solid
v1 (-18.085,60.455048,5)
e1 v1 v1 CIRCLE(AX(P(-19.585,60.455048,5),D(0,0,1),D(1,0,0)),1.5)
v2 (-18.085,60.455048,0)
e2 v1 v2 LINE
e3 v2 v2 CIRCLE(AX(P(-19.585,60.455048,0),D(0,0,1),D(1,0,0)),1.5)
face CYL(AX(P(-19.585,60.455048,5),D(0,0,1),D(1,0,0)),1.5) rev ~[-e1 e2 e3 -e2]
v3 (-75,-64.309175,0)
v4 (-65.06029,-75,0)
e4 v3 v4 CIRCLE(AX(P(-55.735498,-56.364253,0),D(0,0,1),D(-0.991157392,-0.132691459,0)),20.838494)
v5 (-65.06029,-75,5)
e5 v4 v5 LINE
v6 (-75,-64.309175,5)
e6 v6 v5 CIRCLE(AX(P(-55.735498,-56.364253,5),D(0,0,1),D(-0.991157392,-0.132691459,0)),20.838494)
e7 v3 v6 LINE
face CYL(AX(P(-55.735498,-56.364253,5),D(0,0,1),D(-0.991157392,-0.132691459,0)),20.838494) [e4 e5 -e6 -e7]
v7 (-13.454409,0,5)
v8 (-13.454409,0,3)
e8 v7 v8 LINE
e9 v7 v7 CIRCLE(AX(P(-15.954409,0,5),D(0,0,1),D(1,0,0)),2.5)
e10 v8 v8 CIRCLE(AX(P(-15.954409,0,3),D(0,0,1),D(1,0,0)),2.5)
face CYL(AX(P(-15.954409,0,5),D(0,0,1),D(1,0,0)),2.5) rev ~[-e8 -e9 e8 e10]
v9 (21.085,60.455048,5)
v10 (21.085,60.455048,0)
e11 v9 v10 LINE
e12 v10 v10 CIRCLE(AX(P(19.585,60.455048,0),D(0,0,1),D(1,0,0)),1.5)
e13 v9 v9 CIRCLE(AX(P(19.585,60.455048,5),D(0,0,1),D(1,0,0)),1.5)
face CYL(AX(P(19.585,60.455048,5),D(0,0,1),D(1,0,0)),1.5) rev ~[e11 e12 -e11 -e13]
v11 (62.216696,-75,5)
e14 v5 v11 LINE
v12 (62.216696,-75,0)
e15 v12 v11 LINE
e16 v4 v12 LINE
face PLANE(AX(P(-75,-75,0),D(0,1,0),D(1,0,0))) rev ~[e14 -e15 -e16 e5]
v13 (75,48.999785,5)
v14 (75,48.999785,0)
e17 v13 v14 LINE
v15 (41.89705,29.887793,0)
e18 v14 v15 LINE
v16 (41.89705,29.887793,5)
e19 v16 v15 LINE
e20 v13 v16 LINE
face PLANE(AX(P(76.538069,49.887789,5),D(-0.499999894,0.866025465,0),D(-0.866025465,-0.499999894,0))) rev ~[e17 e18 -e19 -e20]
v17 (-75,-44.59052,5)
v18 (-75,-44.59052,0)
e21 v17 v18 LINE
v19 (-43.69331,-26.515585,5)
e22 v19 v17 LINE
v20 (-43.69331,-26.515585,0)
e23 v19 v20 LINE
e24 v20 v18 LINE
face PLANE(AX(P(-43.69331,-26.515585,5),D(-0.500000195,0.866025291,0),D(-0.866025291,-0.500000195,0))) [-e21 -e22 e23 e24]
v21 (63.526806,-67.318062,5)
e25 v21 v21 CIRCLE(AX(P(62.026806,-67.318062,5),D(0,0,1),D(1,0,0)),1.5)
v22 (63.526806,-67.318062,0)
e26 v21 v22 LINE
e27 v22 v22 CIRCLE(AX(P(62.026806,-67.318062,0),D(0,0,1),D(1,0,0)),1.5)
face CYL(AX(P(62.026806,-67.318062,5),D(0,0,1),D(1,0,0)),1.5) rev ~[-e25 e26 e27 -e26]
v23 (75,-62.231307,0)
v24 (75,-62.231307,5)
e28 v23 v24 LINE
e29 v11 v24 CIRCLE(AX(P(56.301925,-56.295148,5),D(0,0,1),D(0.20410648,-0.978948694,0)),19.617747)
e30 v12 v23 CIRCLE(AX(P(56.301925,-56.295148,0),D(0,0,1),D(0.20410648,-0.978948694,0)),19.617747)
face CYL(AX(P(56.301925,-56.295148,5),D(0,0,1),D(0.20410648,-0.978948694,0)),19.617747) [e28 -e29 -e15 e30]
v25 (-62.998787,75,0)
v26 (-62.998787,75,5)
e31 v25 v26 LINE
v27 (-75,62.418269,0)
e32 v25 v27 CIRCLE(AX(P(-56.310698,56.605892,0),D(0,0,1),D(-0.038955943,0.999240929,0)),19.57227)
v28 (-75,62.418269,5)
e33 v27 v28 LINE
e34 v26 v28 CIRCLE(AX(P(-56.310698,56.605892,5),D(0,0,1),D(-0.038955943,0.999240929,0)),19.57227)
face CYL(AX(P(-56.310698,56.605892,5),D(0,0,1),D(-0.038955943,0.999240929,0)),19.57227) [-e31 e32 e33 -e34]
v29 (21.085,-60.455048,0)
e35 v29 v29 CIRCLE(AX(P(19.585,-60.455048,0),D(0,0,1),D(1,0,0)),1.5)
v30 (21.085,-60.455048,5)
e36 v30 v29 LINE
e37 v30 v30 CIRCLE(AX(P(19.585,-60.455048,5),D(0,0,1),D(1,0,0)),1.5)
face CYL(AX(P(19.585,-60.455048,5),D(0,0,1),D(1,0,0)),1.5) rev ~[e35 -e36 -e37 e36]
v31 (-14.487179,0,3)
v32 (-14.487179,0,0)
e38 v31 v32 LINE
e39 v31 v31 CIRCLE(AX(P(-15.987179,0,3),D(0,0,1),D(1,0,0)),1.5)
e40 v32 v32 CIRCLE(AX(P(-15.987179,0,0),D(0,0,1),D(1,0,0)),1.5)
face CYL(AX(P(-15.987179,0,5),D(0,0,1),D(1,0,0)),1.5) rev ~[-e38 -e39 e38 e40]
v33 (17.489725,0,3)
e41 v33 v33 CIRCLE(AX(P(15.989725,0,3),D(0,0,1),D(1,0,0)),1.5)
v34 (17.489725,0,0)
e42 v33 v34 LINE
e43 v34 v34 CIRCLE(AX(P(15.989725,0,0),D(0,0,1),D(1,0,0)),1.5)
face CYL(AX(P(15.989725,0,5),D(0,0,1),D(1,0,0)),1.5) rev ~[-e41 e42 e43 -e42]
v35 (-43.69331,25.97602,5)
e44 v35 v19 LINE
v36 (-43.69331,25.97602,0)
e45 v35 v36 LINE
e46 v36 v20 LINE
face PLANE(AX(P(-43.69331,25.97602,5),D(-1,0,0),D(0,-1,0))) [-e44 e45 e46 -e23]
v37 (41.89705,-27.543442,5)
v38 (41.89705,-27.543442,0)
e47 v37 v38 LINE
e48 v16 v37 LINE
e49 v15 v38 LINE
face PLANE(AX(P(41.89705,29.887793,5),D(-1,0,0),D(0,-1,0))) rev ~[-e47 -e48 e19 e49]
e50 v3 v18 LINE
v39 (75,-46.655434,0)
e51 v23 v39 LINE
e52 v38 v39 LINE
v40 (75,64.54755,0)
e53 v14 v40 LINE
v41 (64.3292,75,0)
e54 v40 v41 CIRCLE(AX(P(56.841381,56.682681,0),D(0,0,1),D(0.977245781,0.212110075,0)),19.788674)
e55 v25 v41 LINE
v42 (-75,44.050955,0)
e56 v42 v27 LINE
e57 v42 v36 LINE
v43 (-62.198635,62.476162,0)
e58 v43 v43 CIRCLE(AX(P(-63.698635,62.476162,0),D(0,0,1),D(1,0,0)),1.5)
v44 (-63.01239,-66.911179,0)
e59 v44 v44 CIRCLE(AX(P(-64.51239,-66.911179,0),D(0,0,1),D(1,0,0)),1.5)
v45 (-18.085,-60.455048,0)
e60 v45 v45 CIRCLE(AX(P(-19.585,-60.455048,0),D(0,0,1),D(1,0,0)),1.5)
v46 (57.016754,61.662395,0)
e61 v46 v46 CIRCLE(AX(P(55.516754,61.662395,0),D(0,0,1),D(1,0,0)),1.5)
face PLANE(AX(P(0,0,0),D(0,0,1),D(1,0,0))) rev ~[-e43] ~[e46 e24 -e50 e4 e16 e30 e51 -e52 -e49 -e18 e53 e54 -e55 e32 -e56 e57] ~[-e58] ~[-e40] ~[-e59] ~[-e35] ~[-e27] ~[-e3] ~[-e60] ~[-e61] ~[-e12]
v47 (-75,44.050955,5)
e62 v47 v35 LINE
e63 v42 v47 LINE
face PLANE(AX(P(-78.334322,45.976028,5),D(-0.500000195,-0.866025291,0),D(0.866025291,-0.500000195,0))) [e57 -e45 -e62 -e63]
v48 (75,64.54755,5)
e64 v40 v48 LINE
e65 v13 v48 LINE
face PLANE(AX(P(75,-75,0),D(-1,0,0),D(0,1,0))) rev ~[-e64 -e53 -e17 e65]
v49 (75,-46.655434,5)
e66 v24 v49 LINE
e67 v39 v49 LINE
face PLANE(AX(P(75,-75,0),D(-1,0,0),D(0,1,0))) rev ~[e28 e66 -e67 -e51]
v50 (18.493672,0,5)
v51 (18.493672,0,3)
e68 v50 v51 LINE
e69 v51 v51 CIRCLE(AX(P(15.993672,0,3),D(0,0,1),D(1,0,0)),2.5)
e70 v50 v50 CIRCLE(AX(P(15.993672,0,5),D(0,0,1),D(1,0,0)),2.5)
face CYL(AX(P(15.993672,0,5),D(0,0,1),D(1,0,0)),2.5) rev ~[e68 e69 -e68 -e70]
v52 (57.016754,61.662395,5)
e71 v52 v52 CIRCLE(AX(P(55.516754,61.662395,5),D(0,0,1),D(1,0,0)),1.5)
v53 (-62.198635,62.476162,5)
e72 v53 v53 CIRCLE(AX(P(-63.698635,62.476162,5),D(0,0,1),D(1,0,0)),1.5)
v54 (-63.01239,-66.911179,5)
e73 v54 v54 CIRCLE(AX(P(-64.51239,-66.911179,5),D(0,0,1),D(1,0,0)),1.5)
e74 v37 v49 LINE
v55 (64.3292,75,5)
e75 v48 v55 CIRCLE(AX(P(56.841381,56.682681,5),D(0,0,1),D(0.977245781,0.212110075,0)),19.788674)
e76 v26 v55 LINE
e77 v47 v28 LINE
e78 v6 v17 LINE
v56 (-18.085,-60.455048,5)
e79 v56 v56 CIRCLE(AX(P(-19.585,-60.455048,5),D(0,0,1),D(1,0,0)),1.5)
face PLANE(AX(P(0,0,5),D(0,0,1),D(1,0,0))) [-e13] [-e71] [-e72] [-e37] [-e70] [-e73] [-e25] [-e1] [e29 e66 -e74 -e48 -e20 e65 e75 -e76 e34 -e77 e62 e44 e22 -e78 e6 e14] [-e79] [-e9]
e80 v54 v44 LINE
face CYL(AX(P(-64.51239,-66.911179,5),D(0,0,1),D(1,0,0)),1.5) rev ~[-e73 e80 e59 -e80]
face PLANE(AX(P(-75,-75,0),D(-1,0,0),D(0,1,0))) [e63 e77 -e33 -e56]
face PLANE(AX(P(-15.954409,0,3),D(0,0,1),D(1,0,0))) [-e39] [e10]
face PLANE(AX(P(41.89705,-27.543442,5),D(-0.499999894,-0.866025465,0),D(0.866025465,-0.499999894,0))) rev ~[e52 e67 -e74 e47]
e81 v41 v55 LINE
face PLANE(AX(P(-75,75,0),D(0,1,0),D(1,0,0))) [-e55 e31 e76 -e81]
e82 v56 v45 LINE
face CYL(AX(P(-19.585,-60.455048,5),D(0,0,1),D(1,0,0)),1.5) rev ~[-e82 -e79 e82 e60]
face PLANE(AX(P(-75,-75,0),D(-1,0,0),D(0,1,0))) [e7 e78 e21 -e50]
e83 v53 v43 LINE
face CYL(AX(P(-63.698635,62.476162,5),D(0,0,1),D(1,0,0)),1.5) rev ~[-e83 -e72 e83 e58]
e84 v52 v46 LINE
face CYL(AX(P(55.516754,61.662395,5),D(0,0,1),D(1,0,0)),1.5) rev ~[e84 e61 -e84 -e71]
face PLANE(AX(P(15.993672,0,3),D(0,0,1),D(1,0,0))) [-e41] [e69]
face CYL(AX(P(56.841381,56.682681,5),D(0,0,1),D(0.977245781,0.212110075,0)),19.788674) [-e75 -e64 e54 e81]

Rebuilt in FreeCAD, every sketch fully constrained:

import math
import FreeCAD as App
import Part
import Sketcher
from FreeCAD import Vector
Q = App.Units.Quantity

doc = App.newDocument("Part")
body = doc.addObject("PartDesign::Body", "Body")

# Sketch on XY plane
sketch1 = doc.addObject("Sketcher::SketchObject", "Sketch")
body.addObject(sketch1)
sketch1.AttachmentSupport = (doc.XY_Plane, [""])
sketch1.MapMode = "FlatFace"
sketch1.addGeometry([
    Part.LineSegment(Vector(-75, 75, 0), Vector(-75, -75, 0)),
    Part.LineSegment(Vector(-75, -75, 0), Vector(75, -75, 0)),
    Part.LineSegment(Vector(75, -75, 0), Vector(75, 75, 0)),
    Part.LineSegment(Vector(75, 75, 0), Vector(-75, 75, 0)),
], False)
sketch1.addConstraint([
    Sketcher.Constraint("Coincident", 0, 2, 1, 1),
    Sketcher.Constraint("Coincident", 1, 2, 2, 1),
    Sketcher.Constraint("Coincident", 2, 2, 3, 1),
    Sketcher.Constraint("Coincident", 3, 2, 0, 1),
    Sketcher.Constraint("Vertical", 0),
    Sketcher.Constraint("Horizontal", 1),
    Sketcher.Constraint("Vertical", 2),
    Sketcher.Constraint("Horizontal", 3),
    Sketcher.Constraint("Symmetric", 0, 2, 2, 2, -1, 1),
    Sketcher.Constraint("Equal", 3, 0),
    Sketcher.Constraint("DistanceX", 1, 1, 1, 2, Q("150 mm")),
])
pad1 = doc.addObject("PartDesign::Pad", "Pad")
body.addObject(pad1)
pad1.Profile = sketch1
pad1.Length = 5

# Sketch on XY plane
sketch2 = doc.addObject("Sketcher::SketchObject", "Sketch001")
body.addObject(sketch2)
sketch2.AttachmentSupport = (doc.XY_Plane, [""])
sketch2.MapMode = "FlatFace"
sketch2.AttachmentOffset = App.Placement(Vector(0, 0, 5), App.Rotation())
sketch2.addGeometry([
    Part.Circle(Vector(-63.698635, 62.476162, 0), Vector(0, 0, 1), 1.5),  # 0
    Part.Circle(Vector(55.516754, 61.662395, 0), Vector(0, 0, 1), 1.5),  # 1
    Part.Circle(Vector(62.026806, -67.318062, 0), Vector(0, 0, 1), 1.5),  # 2
    Part.Circle(Vector(-64.51239, -66.911179, 0), Vector(0, 0, 1), 1.5),  # 3
    Part.Circle(Vector(-15.987179, 0, 0), Vector(0, 0, 1), 1.5),  # 4
    Part.Circle(Vector(15.989725, 0, 0), Vector(0, 0, 1), 1.5),  # 5
    Part.LineSegment(Vector(-43.69331, 25.97602, 0), Vector(-78.334322, 45.976028, 0)),  # 6
    Part.LineSegment(Vector(-78.334322, 45.976028, 0), Vector(-78.334322, -46.515593, 0)),  # 7
    Part.LineSegment(Vector(-78.334322, -46.515593, 0), Vector(-43.69331, -26.515585, 0)),  # 8
    Part.LineSegment(Vector(-43.69331, -26.515585, 0), Vector(-43.69331, 25.97602, 0)),  # 9
    Part.LineSegment(Vector(76.538069, 49.887789, 0), Vector(41.89705, 29.887793, 0)),  # 10
    Part.LineSegment(Vector(41.89705, 29.887793, 0), Vector(41.89705, -27.543442, 0)),  # 11
    Part.LineSegment(Vector(41.89705, -27.543442, 0), Vector(76.538069, -47.543438, 0)),  # 12
    Part.LineSegment(Vector(76.538069, -47.543438, 0), Vector(76.538069, 49.887789, 0)),  # 13
], False)
sketch2.addConstraint([
    Sketcher.Constraint("Coincident", 6, 2, 7, 1),
    Sketcher.Constraint("Coincident", 7, 2, 8, 1),
    Sketcher.Constraint("Coincident", 8, 2, 9, 1),
    Sketcher.Constraint("Coincident", 9, 2, 6, 1),
    Sketcher.Constraint("Coincident", 10, 2, 11, 1),
    Sketcher.Constraint("Coincident", 11, 2, 12, 1),
    Sketcher.Constraint("Coincident", 12, 2, 13, 1),
    Sketcher.Constraint("Coincident", 13, 2, 10, 1),
    Sketcher.Constraint("Vertical", 7),
    Sketcher.Constraint("Vertical", 9),
    Sketcher.Constraint("Vertical", 11),
    Sketcher.Constraint("Vertical", 13),
    Sketcher.Constraint("Equal", 0, 1),
    Sketcher.Constraint("Equal", 1, 2),
    Sketcher.Constraint("Equal", 2, 3),
    Sketcher.Constraint("Equal", 3, 4),
    Sketcher.Constraint("Equal", 4, 5),
    Sketcher.Constraint("PointOnObject", 4, 3, -1),
    Sketcher.Constraint("PointOnObject", 5, 3, -1),
    Sketcher.Constraint("Parallel", 8, 10),
    Sketcher.Constraint("Parallel", 6, 12),
    Sketcher.Constraint("Equal", 6, 8),
    Sketcher.Constraint("Equal", 8, 10),
    Sketcher.Constraint("Diameter", 0, Q("3 mm")),
    Sketcher.Constraint("Angle", 6, Q("149.999987 deg")),
    Sketcher.Constraint("Distance", 6, Q("40 mm")),
    Sketcher.Constraint("DistanceY", 7, 2, 7, 1, Q("92.491621 mm")),
    Sketcher.Constraint("DistanceY", 10, 2, 1, 3, Q("31.774602 mm")),
    Sketcher.Constraint("DistanceY", 11, 2, 11, 1, Q("57.431235 mm")),
    Sketcher.Constraint("DistanceY", 2, 3, -1, 1, Q("67.318062 mm")),
    Sketcher.Constraint("DistanceX", 3, 3, -1, 1, Q("64.51239 mm")),
    Sketcher.Constraint("DistanceY", 3, 3, -1, 1, Q("66.911179 mm")),
    Sketcher.Constraint("DistanceX", 4, 3, -1, 1, Q("15.987179 mm")),
    Sketcher.Constraint("DistanceX", 6, 2, -1, 1, Q("78.334322 mm")),
    Sketcher.Constraint("DistanceY", -1, 1, 9, 2, Q("25.97602 mm")),
    Sketcher.Constraint("DistanceX", -1, 1, 10, 2, Q("41.89705 mm")),
    Sketcher.Constraint("DistanceY", 11, 2, -1, 1, Q("27.543442 mm")),
    Sketcher.Constraint("DistanceX", 0, 3, 1, 3, Q("119.215389 mm")),
    Sketcher.Constraint("DistanceX", 0, 3, 2, 3, Q("125.725441 mm")),
    Sketcher.Constraint("DistanceY", 3, 3, 0, 3, Q("129.387341 mm")),
    Sketcher.Constraint("DistanceX", 5, 3, 1, 3, Q("39.527029 mm")),
    Sketcher.Constraint("DistanceX", 0, 3, -1, 1, Q("63.698635 mm")),
])
pocket1 = doc.addObject("PartDesign::Pocket", "Pocket")
body.addObject(pocket1)
pocket1.Profile = sketch2
pocket1.Length = 6

# Sketch on XY plane
sketch3 = doc.addObject("Sketcher::SketchObject", "Sketch002")
body.addObject(sketch3)
sketch3.AttachmentSupport = (doc.XY_Plane, [""])
sketch3.MapMode = "FlatFace"
sketch3.AttachmentOffset = App.Placement(Vector(0, 0, 5), App.Rotation())
sketch3.addGeometry([
    Part.ArcOfCircle(Part.Circle(Vector(-55.735498, -56.364253, 0), Vector(0, 0, 1), 20.838494), math.radians(-172.374851), math.radians(-108.108231)),  # 0
    Part.LineSegment(Vector(-76.389725, -59.129343, 0), Vector(-76.389725, -76.170639, 0)),  # 1
    Part.LineSegment(Vector(-76.389725, -76.170639, 0), Vector(-62.212372, -76.170639, 0)),  # 2
    Part.ArcOfCircle(Part.Circle(Vector(56.841381, 56.682681, 0), Vector(0, 0, 1), 19.788674), math.radians(12.246037), math.radians(83.255281)),  # 3
    Part.LineSegment(Vector(76.179779, 60.880058, 0), Vector(75.819939, 75.661225, 0)),  # 4
    Part.LineSegment(Vector(75.819939, 75.661225, 0), Vector(59.165479, 76.334403, 0)),  # 5
    Part.ArcOfCircle(Part.Circle(Vector(56.301925, -56.295148, 0), Vector(0, 0, 1), 19.617747), math.radians(-78.222802), math.radians(-6.093213)),  # 6
    Part.LineSegment(Vector(60.306034, -75.499916, 0), Vector(75.280468, -75.273705, 0)),  # 7
    Part.LineSegment(Vector(75.280468, -75.273705, 0), Vector(75.808842, -58.377499, 0)),  # 8
    Part.ArcOfCircle(Part.Circle(Vector(-56.310698, 56.605892, 0), Vector(0, 0, 1), 19.57227), math.radians(92.232576), math.radians(170.719749)),  # 9
    Part.LineSegment(Vector(-57.073154, 76.163305, 0), Vector(-75.289242, 75.58445, 0)),  # 10
    Part.LineSegment(Vector(-75.289242, 75.58445, 0), Vector(-75.626793, 59.762188, 0)),  # 11
], False)
sketch3.addConstraint([
    Sketcher.Constraint("Coincident", 0, 1, 1, 1),
    Sketcher.Constraint("Coincident", 1, 2, 2, 1),
    Sketcher.Constraint("Coincident", 2, 2, 0, 2),
    Sketcher.Constraint("Coincident", 3, 1, 4, 1),
    Sketcher.Constraint("Coincident", 4, 2, 5, 1),
    Sketcher.Constraint("Coincident", 5, 2, 3, 2),
    Sketcher.Constraint("Coincident", 6, 1, 7, 1),
    Sketcher.Constraint("Coincident", 7, 2, 8, 1),
    Sketcher.Constraint("Coincident", 8, 2, 6, 2),
    Sketcher.Constraint("Coincident", 9, 1, 10, 1),
    Sketcher.Constraint("Coincident", 10, 2, 11, 1),
    Sketcher.Constraint("Coincident", 11, 2, 9, 2),
    Sketcher.Constraint("Vertical", 1),
    Sketcher.Constraint("Horizontal", 2),
    Sketcher.Constraint("Radius", 9, Q("19.57227 mm")),
    Sketcher.Constraint("Radius", 0, Q("20.838494 mm")),
    Sketcher.Constraint("Radius", 3, Q("19.788674 mm")),
    Sketcher.Constraint("Radius", 6, Q("19.617747 mm")),
    Sketcher.Constraint("DistanceY", 8, 2, -1, 1, Q("58.377499 mm")),
    Sketcher.Constraint("DistanceX", 9, 3, 0, 3, Q("0.5752 mm")),
    Sketcher.Constraint("DistanceX", 3, 3, 3, 1, Q("19.338398 mm")),
    Sketcher.Constraint("DistanceY", 0, 1, 3, 1, Q("120.009401 mm")),
    Sketcher.Constraint("DistanceX", 3, 3, 5, 2, Q("2.324098 mm")),
    Sketcher.Constraint("DistanceY", 9, 1, 5, 2, Q("0.171098 mm")),
    Sketcher.Constraint("Distance", 5, Q("16.668059 mm")),
    Sketcher.Constraint("DistanceX", 2, 1, 2, 2, Q("14.177353 mm")),
    Sketcher.Constraint("DistanceY", 1, 2, 1, 1, Q("17.041296 mm")),
    Sketcher.Constraint("DistanceX", -1, 1, 3, 3, Q("56.841381 mm")),
    Sketcher.Constraint("DistanceY", -1, 1, 3, 3, Q("56.682681 mm")),
    Sketcher.Constraint("DistanceX", -1, 1, 4, 2, Q("75.819939 mm")),
    Sketcher.Constraint("DistanceX", -1, 1, 7, 2, Q("75.280468 mm")),
    Sketcher.Constraint("DistanceX", -1, 1, 8, 2, Q("75.808842 mm")),
    Sketcher.Constraint("DistanceX", 10, 2, -1, 1, Q("75.289242 mm")),
    Sketcher.Constraint("DistanceY", -1, 1, 10, 2, Q("75.58445 mm")),
    Sketcher.Constraint("DistanceY", -1, 1, 11, 2, Q("59.762188 mm")),
    Sketcher.Constraint("DistanceX", 0, 3, 3, 3, Q("112.576878 mm")),
    Sketcher.Constraint("DistanceY", 6, 3, 3, 3, Q("112.977829 mm")),
    Sketcher.Constraint("DistanceY", 9, 3, 3, 3, Q("0.076789 mm")),
    Sketcher.Constraint("DistanceX", 6, 3, 6, 1, Q("4.004109 mm")),
    Sketcher.Constraint("DistanceY", 6, 1, 7, 2, Q("0.226211 mm")),
])
pocket2 = doc.addObject("PartDesign::Pocket", "Pocket001")
body.addObject(pocket2)
pocket2.Profile = sketch3
pocket2.Length = 6

# Sketch on XY plane
sketch4 = doc.addObject("Sketcher::SketchObject", "Sketch003")
body.addObject(sketch4)
sketch4.AttachmentSupport = (doc.XY_Plane, [""])
sketch4.MapMode = "FlatFace"
sketch4.AttachmentOffset = App.Placement(Vector(0, 0, 5), App.Rotation())
sketch4.addGeometry([
    Part.Circle(Vector(-19.585, 60.455048, 0), Vector(0, 0, 1), 1.5),
    Part.Circle(Vector(19.585, 60.455048, 0), Vector(0, 0, 1), 1.5),
    Part.Circle(Vector(19.585, -60.455048, 0), Vector(0, 0, 1), 1.5),
    Part.Circle(Vector(-19.585, -60.455048, 0), Vector(0, 0, 1), 1.5),
], False)
sketch4.addConstraint([
    Sketcher.Constraint("Equal", 0, 1),
    Sketcher.Constraint("Equal", 1, 2),
    Sketcher.Constraint("Equal", 2, 3),
    Sketcher.Constraint("Symmetric", 0, 3, 2, 3, -1, 1),
    Sketcher.Constraint("Symmetric", 1, 3, 3, 3, -1, 1),
    Sketcher.Constraint("Symmetric", 0, 3, 1, 3, -2),
    Sketcher.Constraint("Diameter", 0, Q("3 mm")),
    Sketcher.Constraint("DistanceX", 0, 3, 1, 3, Q("39.17 mm")),
    Sketcher.Constraint("DistanceY", -1, 1, 0, 3, Q("60.455048 mm")),
])
pocket3 = doc.addObject("PartDesign::Pocket", "Pocket002")
body.addObject(pocket3)
pocket3.Profile = sketch4
pocket3.Length = 6

# Sketch on XY plane
sketch5 = doc.addObject("Sketcher::SketchObject", "Sketch004")
body.addObject(sketch5)
sketch5.AttachmentSupport = (doc.XY_Plane, [""])
sketch5.MapMode = "FlatFace"
sketch5.AttachmentOffset = App.Placement(Vector(0, 0, 5), App.Rotation())
sketch5.addGeometry([
    Part.Circle(Vector(-15.954409, 0, 0), Vector(0, 0, 1), 2.5),
    Part.Circle(Vector(15.993672, 0, 0), Vector(0, 0, 1), 2.5),
], False)
sketch5.addConstraint([
    Sketcher.Constraint("Equal", 0, 1),
    Sketcher.Constraint("PointOnObject", 0, 3, -1),
    Sketcher.Constraint("PointOnObject", 1, 3, -1),
    Sketcher.Constraint("Diameter", 0, Q("5 mm")),
    Sketcher.Constraint("DistanceX", 0, 3, -1, 1, Q("15.954409 mm")),
    Sketcher.Constraint("DistanceX", 0, 3, 1, 3, Q("31.948081 mm")),
])
pocket4 = doc.addObject("PartDesign::Pocket", "Pocket003")
body.addObject(pocket4)
pocket4.Profile = sketch5
pocket4.Length = 2

doc.recompute()
